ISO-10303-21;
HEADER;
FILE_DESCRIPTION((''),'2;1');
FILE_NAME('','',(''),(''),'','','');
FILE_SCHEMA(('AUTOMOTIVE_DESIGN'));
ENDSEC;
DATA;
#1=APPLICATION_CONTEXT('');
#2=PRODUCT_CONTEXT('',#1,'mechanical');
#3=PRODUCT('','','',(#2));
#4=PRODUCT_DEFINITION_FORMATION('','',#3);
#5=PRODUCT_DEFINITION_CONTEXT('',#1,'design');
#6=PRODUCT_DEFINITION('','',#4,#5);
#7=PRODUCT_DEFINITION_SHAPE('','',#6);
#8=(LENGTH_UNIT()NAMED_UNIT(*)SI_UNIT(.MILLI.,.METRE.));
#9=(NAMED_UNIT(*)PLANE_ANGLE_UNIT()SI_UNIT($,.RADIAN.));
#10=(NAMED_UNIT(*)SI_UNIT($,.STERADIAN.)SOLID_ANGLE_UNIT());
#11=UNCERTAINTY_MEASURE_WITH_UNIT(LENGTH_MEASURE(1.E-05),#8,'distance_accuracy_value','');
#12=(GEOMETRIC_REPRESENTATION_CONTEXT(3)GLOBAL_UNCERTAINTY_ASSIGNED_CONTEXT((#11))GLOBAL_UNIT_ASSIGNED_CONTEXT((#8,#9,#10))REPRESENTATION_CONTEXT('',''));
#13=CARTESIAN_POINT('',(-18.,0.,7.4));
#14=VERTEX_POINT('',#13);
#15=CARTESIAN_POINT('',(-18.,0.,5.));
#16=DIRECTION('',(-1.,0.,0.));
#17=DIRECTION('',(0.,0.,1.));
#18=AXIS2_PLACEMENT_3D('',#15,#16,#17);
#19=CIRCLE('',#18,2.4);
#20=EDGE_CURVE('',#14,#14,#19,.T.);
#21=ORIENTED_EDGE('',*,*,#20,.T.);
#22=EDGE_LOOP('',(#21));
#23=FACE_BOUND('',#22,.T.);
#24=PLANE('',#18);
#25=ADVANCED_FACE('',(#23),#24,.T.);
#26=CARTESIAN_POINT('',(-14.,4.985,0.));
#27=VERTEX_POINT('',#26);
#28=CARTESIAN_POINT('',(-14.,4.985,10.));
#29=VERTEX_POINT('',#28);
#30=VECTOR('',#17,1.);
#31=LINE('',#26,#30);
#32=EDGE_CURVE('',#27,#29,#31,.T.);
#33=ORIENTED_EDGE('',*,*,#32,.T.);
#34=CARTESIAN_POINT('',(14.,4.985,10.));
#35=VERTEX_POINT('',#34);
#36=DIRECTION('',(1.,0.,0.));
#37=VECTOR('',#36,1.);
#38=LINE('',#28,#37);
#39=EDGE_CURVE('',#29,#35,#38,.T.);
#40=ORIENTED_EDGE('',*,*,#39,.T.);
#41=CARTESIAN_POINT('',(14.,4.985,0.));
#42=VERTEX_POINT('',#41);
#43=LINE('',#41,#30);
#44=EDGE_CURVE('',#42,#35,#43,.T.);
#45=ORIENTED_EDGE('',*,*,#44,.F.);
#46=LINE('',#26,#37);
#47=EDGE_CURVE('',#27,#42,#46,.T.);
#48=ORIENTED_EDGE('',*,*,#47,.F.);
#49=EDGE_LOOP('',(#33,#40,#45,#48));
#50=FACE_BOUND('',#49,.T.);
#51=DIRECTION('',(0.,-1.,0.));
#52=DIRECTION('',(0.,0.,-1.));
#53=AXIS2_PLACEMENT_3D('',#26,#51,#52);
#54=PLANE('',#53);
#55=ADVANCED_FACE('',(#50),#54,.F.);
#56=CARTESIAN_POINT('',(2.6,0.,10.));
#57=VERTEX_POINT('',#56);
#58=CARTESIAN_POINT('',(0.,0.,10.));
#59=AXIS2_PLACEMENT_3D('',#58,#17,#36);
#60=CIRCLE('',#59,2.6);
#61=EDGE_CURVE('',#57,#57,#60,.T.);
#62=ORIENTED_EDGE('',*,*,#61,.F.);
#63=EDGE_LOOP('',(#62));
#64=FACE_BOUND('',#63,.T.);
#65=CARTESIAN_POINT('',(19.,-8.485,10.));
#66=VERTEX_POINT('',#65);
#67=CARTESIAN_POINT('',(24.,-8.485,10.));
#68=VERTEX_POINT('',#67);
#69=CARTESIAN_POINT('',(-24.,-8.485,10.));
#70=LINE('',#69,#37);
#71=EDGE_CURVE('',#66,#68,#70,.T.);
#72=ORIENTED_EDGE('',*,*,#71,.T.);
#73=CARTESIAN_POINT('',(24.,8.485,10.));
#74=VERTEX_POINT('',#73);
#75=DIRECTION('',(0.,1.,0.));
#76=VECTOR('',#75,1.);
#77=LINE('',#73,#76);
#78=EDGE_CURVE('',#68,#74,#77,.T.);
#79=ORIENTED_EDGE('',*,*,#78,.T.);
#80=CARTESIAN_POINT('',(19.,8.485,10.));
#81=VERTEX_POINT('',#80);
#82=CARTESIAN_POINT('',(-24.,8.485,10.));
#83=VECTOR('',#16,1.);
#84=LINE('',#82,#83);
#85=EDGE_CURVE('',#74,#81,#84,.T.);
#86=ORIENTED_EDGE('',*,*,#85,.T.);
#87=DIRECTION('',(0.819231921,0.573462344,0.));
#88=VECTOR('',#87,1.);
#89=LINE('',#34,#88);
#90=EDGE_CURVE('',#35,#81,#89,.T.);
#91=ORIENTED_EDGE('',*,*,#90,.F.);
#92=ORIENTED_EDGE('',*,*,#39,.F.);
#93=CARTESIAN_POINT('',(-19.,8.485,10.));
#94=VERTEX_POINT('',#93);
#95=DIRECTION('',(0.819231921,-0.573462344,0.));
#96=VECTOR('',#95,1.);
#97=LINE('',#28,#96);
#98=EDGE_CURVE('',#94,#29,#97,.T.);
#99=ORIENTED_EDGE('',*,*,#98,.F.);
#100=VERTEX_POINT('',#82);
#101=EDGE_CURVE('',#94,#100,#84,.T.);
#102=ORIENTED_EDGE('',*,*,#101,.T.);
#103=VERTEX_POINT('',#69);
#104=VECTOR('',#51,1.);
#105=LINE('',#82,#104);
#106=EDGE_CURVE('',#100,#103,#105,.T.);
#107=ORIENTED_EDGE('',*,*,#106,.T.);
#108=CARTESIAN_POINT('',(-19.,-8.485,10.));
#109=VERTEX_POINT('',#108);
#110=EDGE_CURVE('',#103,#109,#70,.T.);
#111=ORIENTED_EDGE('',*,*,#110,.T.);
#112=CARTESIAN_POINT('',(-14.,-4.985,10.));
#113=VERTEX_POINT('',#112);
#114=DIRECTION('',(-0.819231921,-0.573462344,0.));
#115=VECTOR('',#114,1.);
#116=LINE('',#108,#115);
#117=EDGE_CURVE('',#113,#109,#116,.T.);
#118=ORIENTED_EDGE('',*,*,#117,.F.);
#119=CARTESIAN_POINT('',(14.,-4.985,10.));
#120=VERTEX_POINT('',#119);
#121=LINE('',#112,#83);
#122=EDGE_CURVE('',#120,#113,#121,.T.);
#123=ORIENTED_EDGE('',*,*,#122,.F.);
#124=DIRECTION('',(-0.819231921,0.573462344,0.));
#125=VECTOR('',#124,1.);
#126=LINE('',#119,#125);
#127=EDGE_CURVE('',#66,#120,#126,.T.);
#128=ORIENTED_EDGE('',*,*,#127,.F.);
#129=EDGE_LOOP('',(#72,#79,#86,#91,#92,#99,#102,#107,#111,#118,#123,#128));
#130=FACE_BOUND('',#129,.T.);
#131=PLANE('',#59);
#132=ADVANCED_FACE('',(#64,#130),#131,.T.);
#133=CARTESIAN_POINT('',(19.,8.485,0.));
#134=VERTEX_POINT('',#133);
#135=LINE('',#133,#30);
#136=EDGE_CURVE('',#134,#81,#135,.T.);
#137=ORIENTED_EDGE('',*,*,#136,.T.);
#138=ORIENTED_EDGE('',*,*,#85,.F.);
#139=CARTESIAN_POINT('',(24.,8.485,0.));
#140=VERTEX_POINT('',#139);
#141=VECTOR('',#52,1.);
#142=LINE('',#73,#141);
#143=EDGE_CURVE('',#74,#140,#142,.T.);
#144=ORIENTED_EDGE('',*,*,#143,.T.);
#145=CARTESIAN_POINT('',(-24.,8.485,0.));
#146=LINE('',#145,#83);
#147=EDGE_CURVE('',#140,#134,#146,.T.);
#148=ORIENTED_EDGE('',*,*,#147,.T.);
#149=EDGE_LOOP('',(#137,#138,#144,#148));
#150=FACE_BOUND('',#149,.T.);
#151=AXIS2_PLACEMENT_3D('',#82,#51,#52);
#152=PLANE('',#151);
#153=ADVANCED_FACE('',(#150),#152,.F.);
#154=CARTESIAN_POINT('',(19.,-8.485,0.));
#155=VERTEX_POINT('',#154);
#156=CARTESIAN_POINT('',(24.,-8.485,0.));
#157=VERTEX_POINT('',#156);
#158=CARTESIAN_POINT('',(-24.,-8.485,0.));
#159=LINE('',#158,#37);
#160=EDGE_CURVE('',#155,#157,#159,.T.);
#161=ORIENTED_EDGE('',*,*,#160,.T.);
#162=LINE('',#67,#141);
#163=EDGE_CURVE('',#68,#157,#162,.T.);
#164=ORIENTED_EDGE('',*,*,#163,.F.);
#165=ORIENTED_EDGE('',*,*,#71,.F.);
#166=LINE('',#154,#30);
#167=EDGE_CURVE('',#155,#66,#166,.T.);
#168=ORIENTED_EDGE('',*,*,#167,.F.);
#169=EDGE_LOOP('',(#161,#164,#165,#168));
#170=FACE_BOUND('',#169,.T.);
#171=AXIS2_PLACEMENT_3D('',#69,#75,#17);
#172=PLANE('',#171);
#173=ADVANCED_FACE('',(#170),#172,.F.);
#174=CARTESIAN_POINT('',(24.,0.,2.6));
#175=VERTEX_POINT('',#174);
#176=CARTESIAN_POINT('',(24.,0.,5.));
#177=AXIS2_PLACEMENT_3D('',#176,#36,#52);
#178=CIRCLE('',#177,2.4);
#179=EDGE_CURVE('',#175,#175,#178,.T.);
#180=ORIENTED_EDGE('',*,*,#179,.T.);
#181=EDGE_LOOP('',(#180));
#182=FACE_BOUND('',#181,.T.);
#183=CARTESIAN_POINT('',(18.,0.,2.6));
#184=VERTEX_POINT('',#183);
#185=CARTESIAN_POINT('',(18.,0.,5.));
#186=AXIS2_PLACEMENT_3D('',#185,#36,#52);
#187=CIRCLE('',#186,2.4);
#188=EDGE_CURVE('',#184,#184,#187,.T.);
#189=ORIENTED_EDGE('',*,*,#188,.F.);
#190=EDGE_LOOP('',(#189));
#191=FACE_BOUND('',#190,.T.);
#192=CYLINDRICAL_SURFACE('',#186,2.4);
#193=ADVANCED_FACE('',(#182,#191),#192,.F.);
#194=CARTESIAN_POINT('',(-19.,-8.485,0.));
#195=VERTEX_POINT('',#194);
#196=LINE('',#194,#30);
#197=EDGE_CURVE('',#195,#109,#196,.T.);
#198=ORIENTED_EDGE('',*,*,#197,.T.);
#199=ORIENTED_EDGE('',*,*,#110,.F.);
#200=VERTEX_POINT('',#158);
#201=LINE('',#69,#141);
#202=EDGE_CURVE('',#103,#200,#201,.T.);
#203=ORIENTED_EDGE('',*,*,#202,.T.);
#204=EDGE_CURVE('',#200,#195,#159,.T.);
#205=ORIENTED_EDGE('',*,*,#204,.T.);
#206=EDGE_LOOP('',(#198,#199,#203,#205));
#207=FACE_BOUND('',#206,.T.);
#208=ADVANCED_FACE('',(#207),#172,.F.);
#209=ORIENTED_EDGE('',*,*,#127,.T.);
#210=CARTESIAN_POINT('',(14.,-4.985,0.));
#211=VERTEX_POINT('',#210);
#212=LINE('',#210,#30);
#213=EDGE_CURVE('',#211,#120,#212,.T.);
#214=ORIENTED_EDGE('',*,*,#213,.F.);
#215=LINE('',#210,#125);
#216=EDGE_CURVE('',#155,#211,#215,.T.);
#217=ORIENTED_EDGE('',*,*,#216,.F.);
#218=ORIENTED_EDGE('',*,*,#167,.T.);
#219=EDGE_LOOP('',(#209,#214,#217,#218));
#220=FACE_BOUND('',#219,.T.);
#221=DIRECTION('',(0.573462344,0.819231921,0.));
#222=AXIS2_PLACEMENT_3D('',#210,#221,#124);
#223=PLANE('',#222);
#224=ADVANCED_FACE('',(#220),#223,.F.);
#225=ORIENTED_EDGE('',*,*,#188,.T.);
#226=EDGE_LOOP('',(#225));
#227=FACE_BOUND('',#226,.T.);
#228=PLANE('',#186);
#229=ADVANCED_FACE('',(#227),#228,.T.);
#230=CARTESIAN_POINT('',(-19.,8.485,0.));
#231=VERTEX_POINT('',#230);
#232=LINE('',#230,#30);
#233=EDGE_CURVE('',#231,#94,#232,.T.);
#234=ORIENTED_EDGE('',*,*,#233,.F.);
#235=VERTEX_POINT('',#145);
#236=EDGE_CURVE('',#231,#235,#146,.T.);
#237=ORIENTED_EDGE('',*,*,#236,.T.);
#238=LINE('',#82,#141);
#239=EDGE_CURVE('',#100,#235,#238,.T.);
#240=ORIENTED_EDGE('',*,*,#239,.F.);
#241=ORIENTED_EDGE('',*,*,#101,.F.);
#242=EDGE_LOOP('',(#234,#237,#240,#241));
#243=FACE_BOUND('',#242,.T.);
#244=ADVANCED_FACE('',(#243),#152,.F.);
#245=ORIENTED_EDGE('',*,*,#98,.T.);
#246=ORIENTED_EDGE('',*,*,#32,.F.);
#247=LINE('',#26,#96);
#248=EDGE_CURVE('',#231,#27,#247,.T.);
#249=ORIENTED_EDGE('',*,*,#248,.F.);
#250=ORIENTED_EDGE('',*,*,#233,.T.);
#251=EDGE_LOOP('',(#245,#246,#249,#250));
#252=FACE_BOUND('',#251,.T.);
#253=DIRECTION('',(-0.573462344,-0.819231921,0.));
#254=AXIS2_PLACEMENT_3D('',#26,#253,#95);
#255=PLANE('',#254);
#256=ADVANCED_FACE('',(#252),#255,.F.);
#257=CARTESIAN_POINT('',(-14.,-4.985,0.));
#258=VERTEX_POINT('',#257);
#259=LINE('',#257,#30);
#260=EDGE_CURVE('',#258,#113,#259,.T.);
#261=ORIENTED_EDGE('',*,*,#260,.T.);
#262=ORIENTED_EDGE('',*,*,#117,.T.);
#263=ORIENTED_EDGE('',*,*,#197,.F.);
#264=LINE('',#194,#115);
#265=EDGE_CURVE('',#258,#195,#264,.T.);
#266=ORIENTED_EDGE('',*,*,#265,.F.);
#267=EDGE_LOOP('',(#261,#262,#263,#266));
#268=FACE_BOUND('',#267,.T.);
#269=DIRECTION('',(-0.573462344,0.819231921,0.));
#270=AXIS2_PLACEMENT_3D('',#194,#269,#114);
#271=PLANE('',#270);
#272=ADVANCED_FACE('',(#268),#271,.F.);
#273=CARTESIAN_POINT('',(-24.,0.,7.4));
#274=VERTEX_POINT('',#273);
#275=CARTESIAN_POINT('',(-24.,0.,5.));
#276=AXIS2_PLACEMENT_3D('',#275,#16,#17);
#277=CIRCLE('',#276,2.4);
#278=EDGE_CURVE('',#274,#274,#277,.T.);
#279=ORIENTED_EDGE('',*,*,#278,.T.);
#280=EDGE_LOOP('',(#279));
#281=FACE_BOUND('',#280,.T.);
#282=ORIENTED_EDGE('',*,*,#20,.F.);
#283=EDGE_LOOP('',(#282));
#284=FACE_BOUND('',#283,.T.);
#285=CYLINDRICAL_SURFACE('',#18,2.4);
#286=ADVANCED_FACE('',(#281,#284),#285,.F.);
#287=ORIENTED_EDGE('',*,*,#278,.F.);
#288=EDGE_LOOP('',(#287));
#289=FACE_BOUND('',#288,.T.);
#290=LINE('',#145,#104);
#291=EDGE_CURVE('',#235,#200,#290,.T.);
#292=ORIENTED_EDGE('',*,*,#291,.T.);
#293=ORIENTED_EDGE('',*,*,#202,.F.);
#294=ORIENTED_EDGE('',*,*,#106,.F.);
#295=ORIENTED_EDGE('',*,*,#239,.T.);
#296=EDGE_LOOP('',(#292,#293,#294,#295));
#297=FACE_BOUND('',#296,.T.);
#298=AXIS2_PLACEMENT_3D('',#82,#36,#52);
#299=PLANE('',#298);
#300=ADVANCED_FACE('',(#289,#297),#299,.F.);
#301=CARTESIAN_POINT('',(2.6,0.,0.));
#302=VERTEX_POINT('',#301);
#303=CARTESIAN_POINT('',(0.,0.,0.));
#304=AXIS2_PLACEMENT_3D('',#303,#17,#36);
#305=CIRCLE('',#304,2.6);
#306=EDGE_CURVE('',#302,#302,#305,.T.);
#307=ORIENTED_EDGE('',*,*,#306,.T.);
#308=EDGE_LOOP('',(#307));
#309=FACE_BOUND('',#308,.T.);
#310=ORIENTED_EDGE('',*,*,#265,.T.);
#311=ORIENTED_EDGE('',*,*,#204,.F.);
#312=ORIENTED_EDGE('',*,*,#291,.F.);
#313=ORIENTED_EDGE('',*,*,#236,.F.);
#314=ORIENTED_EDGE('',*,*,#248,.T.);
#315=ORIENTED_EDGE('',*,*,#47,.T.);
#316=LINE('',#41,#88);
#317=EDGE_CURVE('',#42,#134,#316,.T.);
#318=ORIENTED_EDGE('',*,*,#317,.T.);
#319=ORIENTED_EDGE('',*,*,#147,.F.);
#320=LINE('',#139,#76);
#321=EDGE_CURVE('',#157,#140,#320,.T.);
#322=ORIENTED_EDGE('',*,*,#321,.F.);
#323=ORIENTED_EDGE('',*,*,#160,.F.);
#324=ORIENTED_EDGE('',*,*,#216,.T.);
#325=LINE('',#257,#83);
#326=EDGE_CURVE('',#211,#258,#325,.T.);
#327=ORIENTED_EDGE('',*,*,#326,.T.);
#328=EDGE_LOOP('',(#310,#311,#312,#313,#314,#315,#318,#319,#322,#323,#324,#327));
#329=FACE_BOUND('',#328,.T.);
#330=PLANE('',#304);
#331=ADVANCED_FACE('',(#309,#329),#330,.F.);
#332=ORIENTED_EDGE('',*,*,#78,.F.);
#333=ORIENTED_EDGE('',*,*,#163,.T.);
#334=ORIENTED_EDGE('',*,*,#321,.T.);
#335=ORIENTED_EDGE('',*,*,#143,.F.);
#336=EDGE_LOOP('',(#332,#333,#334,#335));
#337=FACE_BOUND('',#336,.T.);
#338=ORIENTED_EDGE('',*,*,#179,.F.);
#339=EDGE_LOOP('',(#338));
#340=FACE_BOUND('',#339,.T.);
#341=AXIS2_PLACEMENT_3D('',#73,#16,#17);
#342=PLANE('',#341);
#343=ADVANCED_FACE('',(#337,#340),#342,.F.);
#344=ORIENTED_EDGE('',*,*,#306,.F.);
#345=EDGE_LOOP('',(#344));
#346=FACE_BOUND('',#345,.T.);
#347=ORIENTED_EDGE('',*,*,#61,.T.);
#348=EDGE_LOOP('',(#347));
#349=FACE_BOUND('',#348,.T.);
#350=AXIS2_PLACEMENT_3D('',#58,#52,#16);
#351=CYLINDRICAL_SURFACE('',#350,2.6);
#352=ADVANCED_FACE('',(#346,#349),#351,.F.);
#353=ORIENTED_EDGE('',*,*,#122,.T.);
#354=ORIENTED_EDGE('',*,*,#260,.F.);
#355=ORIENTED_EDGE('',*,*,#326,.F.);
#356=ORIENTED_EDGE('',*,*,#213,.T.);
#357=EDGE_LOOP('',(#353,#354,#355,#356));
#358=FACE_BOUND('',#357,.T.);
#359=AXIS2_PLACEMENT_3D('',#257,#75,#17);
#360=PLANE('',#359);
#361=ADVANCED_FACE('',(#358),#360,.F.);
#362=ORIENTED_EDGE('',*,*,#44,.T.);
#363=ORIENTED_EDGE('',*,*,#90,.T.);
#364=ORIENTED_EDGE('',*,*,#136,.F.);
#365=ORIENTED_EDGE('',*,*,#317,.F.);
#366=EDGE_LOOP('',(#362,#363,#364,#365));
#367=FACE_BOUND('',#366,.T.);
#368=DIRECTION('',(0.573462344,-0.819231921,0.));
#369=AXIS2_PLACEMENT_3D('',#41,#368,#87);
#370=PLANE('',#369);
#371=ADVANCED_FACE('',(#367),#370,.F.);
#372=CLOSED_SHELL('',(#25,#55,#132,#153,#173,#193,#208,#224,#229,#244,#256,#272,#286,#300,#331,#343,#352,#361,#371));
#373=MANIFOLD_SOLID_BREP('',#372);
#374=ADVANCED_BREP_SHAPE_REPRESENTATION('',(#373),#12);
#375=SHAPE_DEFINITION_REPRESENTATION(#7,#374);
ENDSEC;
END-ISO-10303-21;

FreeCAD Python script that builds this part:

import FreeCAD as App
import Part
import Sketcher
from FreeCAD import Vector
Q = App.Units.Quantity

doc = App.newDocument("Part")
params = doc.addObject("Spreadsheet::Sheet", "Params")
for row, (alias, value) in enumerate([
    ("sketch1_diameter", "5.2 mm"),
    ("sketch1_width", "48 mm"),
    ("sketch1_height", "16.97 mm"),
    ("pad1_length", "10 mm"),
    ("sketch2_diameter", "4.8 mm"),
    ("pocket1_length", "6 mm"),
    ("sketch3_diameter", "4.8 mm"),
    ("pocket2_length", "6 mm"),
    ("sketch4_width", "28 mm"),
    ("sketch4_width2", "38 mm"),
], start=1):
    params.set(f"A{row}", alias)
    params.set(f"B{row}", "=" + value)
    params.setAlias(f"B{row}", alias)

body = doc.addObject("PartDesign::Body", "Body")

# Sketch on XY plane
sketch1 = body.newObject("Sketcher::SketchObject", "Sketch")
sketch1.AttachmentSupport = (doc.getObject("XY_Plane"), [""])
sketch1.MapMode = "FlatFace"
sketch1.addGeometry(Part.LineSegment(Vector(-24, 8.5, 0), Vector(-24, -8.5, 0)), False)
sketch1.addGeometry(Part.LineSegment(Vector(-24, -8.5, 0), Vector(24, -8.5, 0)), False)
sketch1.addGeometry(Part.LineSegment(Vector(24, -8.5, 0), Vector(24, 8.5, 0)), False)
sketch1.addGeometry(Part.LineSegment(Vector(24, 8.5, 0), Vector(-24, 8.5, 0)), False)
sketch1.addGeometry(Part.Circle(Vector(0, 0, 0), Vector(0, 0, 1), 2.6), False)
sketch1.addConstraint(Sketcher.Constraint("Coincident", 0, 2, 1, 1))
sketch1.addConstraint(Sketcher.Constraint("Coincident", 1, 2, 2, 1))
sketch1.addConstraint(Sketcher.Constraint("Coincident", 2, 2, 3, 1))
sketch1.addConstraint(Sketcher.Constraint("Coincident", 3, 2, 0, 1))
sketch1.addConstraint(Sketcher.Constraint("Vertical", 0))
sketch1.addConstraint(Sketcher.Constraint("Horizontal", 1))
sketch1.addConstraint(Sketcher.Constraint("Vertical", 2))
sketch1.addConstraint(Sketcher.Constraint("Horizontal", 3))
sketch1.addConstraint(Sketcher.Constraint("Coincident", 4, 3, -1, 1))
sketch1.addConstraint(Sketcher.Constraint("Symmetric", 0, 2, 2, 2, -1, 1))
sketch1.addConstraint(Sketcher.Constraint("Diameter", 4, Q("5.2 mm")))
sketch1.addConstraint(Sketcher.Constraint("DistanceX", 1, 1, 1, 2, Q("48 mm")))
sketch1.addConstraint(Sketcher.Constraint("DistanceY", 0, 2, 0, 1, Q("16.97 mm")))
sketch1.setExpression("Constraints[10]", "Params.sketch1_diameter")
sketch1.setExpression("Constraints[11]", "Params.sketch1_width")
sketch1.setExpression("Constraints[12]", "Params.sketch1_height")
pad1 = body.newObject("PartDesign::Pad", "Pad")
pad1.Profile = sketch1
pad1.setExpression("Length", "Params.pad1_length")

# Sketch on YZ plane
sketch2 = body.newObject("Sketcher::SketchObject", "Sketch001")
sketch2.AttachmentSupport = (doc.getObject("YZ_Plane"), [""])
sketch2.MapMode = "FlatFace"
sketch2.AttachmentOffset = App.Placement(Vector(0, 0, 24), App.Rotation())
sketch2.addGeometry(Part.Circle(Vector(0, 5, 0), Vector(0, 0, 1), 2.4), False)
sketch2.addConstraint(Sketcher.Constraint("PointOnObject", 0, 3, -2))
sketch2.addConstraint(Sketcher.Constraint("Diameter", 0, Q("4.8 mm")))
sketch2.addConstraint(Sketcher.Constraint("DistanceY", -1, 1, 0, 3, Q("5 mm")))
sketch2.setExpression("Constraints[1]", "Params.sketch2_diameter")
pocket1 = body.newObject("PartDesign::Pocket", "Pocket")
pocket1.Profile = sketch2
pocket1.setExpression("Length", "Params.pocket1_length")

# Sketch on YZ plane
sketch3 = body.newObject("Sketcher::SketchObject", "Sketch002")
sketch3.AttachmentSupport = (doc.getObject("YZ_Plane"), [""])
sketch3.MapMode = "FlatFace"
sketch3.AttachmentOffset = App.Placement(Vector(0, 0, -18), App.Rotation())
sketch3.addGeometry(Part.Circle(Vector(0, 5, 0), Vector(0, 0, 1), 2.4), False)
sketch3.addConstraint(Sketcher.Constraint("PointOnObject", 0, 3, -2))
sketch3.addConstraint(Sketcher.Constraint("Diameter", 0, Q("4.8 mm")))
sketch3.addConstraint(Sketcher.Constraint("DistanceY", -1, 1, 0, 3, Q("5 mm")))
sketch3.setExpression("Constraints[1]", "Params.sketch3_diameter")
pocket2 = body.newObject("PartDesign::Pocket", "Pocket001")
pocket2.Profile = sketch3
pocket2.setExpression("Length", "Params.pocket2_length")

# Sketch on XY plane
sketch4 = body.newObject("Sketcher::SketchObject", "Sketch003")
sketch4.AttachmentSupport = (doc.getObject("XY_Plane"), [""])
sketch4.MapMode = "FlatFace"
sketch4.AttachmentOffset = App.Placement(Vector(0, 0, 10), App.Rotation())
sketch4.addGeometry(Part.LineSegment(Vector(-14, 5, 0), Vector(14, 5, 0)), False)
sketch4.addGeometry(Part.LineSegment(Vector(14, 5, 0), Vector(19, 8, 0)), False)
sketch4.addGeometry(Part.LineSegment(Vector(19, 8, 0), Vector(-19, 8, 0)), False)
sketch4.addGeometry(Part.LineSegment(Vector(-19, 8, 0), Vector(-14, 5, 0)), False)
sketch4.addGeometry(Part.LineSegment(Vector(14, -5, 0), Vector(-14, -5, 0)), False)
sketch4.addGeometry(Part.LineSegment(Vector(-14, -5, 0), Vector(-19, -8, 0)), False)
sketch4.addGeometry(Part.LineSegment(Vector(-19, -8, 0), Vector(19, -8, 0)), False)
sketch4.addGeometry(Part.LineSegment(Vector(19, -8, 0), Vector(14, -5, 0)), False)
sketch4.addConstraint(Sketcher.Constraint("Coincident", 0, 2, 1, 1))
sketch4.addConstraint(Sketcher.Constraint("Coincident", 1, 2, 2, 1))
sketch4.addConstraint(Sketcher.Constraint("Coincident", 2, 2, 3, 1))
sketch4.addConstraint(Sketcher.Constraint("Coincident", 3, 2, 0, 1))
sketch4.addConstraint(Sketcher.Constraint("Coincident", 4, 2, 5, 1))
sketch4.addConstraint(Sketcher.Constraint("Coincident", 5, 2, 6, 1))
sketch4.addConstraint(Sketcher.Constraint("Coincident", 6, 2, 7, 1))
sketch4.addConstraint(Sketcher.Constraint("Coincident", 7, 2, 4, 1))
sketch4.addConstraint(Sketcher.Constraint("Horizontal", 0))
sketch4.addConstraint(Sketcher.Constraint("Horizontal", 2))
sketch4.addConstraint(Sketcher.Constraint("Horizontal", 4))
sketch4.addConstraint(Sketcher.Constraint("Horizontal", 6))
sketch4.addConstraint(Sketcher.Constraint("Symmetric", 0, 2, 4, 2, -1, 1))
sketch4.addConstraint(Sketcher.Constraint("Symmetric", 1, 2, 5, 2, -1, 1))
sketch4.addConstraint(Sketcher.Constraint("Parallel", 3, 7))
sketch4.addConstraint(Sketcher.Constraint("Vertical", 3, 2, 4, 2))
sketch4.addConstraint(Sketcher.Constraint("Vertical", 2, 2, 5, 2))
sketch4.addConstraint(Sketcher.Constraint("Vertical", 1, 2, 6, 2))
sketch4.addConstraint(Sketcher.Constraint("DistanceX", 0, 1, 0, 2, Q("28 mm")))
sketch4.addConstraint(Sketcher.Constraint("DistanceX", 2, 2, 2, 1, Q("38 mm")))
sketch4.addConstraint(Sketcher.Constraint("DistanceY", 0, 2, 1, 2, Q("3.5 mm")))
sketch4.addConstraint(Sketcher.Constraint("DistanceY", 4, 2, 3, 2, Q("9.97 mm")))
sketch4.setExpression("Constraints[18]", "Params.sketch4_width")
sketch4.setExpression("Constraints[19]", "Params.sketch4_width2")
pocket3 = body.newObject("PartDesign::Pocket", "Pocket002")
pocket3.Profile = sketch4
pocket3.Type = "ThroughAll"

doc.recompute()
